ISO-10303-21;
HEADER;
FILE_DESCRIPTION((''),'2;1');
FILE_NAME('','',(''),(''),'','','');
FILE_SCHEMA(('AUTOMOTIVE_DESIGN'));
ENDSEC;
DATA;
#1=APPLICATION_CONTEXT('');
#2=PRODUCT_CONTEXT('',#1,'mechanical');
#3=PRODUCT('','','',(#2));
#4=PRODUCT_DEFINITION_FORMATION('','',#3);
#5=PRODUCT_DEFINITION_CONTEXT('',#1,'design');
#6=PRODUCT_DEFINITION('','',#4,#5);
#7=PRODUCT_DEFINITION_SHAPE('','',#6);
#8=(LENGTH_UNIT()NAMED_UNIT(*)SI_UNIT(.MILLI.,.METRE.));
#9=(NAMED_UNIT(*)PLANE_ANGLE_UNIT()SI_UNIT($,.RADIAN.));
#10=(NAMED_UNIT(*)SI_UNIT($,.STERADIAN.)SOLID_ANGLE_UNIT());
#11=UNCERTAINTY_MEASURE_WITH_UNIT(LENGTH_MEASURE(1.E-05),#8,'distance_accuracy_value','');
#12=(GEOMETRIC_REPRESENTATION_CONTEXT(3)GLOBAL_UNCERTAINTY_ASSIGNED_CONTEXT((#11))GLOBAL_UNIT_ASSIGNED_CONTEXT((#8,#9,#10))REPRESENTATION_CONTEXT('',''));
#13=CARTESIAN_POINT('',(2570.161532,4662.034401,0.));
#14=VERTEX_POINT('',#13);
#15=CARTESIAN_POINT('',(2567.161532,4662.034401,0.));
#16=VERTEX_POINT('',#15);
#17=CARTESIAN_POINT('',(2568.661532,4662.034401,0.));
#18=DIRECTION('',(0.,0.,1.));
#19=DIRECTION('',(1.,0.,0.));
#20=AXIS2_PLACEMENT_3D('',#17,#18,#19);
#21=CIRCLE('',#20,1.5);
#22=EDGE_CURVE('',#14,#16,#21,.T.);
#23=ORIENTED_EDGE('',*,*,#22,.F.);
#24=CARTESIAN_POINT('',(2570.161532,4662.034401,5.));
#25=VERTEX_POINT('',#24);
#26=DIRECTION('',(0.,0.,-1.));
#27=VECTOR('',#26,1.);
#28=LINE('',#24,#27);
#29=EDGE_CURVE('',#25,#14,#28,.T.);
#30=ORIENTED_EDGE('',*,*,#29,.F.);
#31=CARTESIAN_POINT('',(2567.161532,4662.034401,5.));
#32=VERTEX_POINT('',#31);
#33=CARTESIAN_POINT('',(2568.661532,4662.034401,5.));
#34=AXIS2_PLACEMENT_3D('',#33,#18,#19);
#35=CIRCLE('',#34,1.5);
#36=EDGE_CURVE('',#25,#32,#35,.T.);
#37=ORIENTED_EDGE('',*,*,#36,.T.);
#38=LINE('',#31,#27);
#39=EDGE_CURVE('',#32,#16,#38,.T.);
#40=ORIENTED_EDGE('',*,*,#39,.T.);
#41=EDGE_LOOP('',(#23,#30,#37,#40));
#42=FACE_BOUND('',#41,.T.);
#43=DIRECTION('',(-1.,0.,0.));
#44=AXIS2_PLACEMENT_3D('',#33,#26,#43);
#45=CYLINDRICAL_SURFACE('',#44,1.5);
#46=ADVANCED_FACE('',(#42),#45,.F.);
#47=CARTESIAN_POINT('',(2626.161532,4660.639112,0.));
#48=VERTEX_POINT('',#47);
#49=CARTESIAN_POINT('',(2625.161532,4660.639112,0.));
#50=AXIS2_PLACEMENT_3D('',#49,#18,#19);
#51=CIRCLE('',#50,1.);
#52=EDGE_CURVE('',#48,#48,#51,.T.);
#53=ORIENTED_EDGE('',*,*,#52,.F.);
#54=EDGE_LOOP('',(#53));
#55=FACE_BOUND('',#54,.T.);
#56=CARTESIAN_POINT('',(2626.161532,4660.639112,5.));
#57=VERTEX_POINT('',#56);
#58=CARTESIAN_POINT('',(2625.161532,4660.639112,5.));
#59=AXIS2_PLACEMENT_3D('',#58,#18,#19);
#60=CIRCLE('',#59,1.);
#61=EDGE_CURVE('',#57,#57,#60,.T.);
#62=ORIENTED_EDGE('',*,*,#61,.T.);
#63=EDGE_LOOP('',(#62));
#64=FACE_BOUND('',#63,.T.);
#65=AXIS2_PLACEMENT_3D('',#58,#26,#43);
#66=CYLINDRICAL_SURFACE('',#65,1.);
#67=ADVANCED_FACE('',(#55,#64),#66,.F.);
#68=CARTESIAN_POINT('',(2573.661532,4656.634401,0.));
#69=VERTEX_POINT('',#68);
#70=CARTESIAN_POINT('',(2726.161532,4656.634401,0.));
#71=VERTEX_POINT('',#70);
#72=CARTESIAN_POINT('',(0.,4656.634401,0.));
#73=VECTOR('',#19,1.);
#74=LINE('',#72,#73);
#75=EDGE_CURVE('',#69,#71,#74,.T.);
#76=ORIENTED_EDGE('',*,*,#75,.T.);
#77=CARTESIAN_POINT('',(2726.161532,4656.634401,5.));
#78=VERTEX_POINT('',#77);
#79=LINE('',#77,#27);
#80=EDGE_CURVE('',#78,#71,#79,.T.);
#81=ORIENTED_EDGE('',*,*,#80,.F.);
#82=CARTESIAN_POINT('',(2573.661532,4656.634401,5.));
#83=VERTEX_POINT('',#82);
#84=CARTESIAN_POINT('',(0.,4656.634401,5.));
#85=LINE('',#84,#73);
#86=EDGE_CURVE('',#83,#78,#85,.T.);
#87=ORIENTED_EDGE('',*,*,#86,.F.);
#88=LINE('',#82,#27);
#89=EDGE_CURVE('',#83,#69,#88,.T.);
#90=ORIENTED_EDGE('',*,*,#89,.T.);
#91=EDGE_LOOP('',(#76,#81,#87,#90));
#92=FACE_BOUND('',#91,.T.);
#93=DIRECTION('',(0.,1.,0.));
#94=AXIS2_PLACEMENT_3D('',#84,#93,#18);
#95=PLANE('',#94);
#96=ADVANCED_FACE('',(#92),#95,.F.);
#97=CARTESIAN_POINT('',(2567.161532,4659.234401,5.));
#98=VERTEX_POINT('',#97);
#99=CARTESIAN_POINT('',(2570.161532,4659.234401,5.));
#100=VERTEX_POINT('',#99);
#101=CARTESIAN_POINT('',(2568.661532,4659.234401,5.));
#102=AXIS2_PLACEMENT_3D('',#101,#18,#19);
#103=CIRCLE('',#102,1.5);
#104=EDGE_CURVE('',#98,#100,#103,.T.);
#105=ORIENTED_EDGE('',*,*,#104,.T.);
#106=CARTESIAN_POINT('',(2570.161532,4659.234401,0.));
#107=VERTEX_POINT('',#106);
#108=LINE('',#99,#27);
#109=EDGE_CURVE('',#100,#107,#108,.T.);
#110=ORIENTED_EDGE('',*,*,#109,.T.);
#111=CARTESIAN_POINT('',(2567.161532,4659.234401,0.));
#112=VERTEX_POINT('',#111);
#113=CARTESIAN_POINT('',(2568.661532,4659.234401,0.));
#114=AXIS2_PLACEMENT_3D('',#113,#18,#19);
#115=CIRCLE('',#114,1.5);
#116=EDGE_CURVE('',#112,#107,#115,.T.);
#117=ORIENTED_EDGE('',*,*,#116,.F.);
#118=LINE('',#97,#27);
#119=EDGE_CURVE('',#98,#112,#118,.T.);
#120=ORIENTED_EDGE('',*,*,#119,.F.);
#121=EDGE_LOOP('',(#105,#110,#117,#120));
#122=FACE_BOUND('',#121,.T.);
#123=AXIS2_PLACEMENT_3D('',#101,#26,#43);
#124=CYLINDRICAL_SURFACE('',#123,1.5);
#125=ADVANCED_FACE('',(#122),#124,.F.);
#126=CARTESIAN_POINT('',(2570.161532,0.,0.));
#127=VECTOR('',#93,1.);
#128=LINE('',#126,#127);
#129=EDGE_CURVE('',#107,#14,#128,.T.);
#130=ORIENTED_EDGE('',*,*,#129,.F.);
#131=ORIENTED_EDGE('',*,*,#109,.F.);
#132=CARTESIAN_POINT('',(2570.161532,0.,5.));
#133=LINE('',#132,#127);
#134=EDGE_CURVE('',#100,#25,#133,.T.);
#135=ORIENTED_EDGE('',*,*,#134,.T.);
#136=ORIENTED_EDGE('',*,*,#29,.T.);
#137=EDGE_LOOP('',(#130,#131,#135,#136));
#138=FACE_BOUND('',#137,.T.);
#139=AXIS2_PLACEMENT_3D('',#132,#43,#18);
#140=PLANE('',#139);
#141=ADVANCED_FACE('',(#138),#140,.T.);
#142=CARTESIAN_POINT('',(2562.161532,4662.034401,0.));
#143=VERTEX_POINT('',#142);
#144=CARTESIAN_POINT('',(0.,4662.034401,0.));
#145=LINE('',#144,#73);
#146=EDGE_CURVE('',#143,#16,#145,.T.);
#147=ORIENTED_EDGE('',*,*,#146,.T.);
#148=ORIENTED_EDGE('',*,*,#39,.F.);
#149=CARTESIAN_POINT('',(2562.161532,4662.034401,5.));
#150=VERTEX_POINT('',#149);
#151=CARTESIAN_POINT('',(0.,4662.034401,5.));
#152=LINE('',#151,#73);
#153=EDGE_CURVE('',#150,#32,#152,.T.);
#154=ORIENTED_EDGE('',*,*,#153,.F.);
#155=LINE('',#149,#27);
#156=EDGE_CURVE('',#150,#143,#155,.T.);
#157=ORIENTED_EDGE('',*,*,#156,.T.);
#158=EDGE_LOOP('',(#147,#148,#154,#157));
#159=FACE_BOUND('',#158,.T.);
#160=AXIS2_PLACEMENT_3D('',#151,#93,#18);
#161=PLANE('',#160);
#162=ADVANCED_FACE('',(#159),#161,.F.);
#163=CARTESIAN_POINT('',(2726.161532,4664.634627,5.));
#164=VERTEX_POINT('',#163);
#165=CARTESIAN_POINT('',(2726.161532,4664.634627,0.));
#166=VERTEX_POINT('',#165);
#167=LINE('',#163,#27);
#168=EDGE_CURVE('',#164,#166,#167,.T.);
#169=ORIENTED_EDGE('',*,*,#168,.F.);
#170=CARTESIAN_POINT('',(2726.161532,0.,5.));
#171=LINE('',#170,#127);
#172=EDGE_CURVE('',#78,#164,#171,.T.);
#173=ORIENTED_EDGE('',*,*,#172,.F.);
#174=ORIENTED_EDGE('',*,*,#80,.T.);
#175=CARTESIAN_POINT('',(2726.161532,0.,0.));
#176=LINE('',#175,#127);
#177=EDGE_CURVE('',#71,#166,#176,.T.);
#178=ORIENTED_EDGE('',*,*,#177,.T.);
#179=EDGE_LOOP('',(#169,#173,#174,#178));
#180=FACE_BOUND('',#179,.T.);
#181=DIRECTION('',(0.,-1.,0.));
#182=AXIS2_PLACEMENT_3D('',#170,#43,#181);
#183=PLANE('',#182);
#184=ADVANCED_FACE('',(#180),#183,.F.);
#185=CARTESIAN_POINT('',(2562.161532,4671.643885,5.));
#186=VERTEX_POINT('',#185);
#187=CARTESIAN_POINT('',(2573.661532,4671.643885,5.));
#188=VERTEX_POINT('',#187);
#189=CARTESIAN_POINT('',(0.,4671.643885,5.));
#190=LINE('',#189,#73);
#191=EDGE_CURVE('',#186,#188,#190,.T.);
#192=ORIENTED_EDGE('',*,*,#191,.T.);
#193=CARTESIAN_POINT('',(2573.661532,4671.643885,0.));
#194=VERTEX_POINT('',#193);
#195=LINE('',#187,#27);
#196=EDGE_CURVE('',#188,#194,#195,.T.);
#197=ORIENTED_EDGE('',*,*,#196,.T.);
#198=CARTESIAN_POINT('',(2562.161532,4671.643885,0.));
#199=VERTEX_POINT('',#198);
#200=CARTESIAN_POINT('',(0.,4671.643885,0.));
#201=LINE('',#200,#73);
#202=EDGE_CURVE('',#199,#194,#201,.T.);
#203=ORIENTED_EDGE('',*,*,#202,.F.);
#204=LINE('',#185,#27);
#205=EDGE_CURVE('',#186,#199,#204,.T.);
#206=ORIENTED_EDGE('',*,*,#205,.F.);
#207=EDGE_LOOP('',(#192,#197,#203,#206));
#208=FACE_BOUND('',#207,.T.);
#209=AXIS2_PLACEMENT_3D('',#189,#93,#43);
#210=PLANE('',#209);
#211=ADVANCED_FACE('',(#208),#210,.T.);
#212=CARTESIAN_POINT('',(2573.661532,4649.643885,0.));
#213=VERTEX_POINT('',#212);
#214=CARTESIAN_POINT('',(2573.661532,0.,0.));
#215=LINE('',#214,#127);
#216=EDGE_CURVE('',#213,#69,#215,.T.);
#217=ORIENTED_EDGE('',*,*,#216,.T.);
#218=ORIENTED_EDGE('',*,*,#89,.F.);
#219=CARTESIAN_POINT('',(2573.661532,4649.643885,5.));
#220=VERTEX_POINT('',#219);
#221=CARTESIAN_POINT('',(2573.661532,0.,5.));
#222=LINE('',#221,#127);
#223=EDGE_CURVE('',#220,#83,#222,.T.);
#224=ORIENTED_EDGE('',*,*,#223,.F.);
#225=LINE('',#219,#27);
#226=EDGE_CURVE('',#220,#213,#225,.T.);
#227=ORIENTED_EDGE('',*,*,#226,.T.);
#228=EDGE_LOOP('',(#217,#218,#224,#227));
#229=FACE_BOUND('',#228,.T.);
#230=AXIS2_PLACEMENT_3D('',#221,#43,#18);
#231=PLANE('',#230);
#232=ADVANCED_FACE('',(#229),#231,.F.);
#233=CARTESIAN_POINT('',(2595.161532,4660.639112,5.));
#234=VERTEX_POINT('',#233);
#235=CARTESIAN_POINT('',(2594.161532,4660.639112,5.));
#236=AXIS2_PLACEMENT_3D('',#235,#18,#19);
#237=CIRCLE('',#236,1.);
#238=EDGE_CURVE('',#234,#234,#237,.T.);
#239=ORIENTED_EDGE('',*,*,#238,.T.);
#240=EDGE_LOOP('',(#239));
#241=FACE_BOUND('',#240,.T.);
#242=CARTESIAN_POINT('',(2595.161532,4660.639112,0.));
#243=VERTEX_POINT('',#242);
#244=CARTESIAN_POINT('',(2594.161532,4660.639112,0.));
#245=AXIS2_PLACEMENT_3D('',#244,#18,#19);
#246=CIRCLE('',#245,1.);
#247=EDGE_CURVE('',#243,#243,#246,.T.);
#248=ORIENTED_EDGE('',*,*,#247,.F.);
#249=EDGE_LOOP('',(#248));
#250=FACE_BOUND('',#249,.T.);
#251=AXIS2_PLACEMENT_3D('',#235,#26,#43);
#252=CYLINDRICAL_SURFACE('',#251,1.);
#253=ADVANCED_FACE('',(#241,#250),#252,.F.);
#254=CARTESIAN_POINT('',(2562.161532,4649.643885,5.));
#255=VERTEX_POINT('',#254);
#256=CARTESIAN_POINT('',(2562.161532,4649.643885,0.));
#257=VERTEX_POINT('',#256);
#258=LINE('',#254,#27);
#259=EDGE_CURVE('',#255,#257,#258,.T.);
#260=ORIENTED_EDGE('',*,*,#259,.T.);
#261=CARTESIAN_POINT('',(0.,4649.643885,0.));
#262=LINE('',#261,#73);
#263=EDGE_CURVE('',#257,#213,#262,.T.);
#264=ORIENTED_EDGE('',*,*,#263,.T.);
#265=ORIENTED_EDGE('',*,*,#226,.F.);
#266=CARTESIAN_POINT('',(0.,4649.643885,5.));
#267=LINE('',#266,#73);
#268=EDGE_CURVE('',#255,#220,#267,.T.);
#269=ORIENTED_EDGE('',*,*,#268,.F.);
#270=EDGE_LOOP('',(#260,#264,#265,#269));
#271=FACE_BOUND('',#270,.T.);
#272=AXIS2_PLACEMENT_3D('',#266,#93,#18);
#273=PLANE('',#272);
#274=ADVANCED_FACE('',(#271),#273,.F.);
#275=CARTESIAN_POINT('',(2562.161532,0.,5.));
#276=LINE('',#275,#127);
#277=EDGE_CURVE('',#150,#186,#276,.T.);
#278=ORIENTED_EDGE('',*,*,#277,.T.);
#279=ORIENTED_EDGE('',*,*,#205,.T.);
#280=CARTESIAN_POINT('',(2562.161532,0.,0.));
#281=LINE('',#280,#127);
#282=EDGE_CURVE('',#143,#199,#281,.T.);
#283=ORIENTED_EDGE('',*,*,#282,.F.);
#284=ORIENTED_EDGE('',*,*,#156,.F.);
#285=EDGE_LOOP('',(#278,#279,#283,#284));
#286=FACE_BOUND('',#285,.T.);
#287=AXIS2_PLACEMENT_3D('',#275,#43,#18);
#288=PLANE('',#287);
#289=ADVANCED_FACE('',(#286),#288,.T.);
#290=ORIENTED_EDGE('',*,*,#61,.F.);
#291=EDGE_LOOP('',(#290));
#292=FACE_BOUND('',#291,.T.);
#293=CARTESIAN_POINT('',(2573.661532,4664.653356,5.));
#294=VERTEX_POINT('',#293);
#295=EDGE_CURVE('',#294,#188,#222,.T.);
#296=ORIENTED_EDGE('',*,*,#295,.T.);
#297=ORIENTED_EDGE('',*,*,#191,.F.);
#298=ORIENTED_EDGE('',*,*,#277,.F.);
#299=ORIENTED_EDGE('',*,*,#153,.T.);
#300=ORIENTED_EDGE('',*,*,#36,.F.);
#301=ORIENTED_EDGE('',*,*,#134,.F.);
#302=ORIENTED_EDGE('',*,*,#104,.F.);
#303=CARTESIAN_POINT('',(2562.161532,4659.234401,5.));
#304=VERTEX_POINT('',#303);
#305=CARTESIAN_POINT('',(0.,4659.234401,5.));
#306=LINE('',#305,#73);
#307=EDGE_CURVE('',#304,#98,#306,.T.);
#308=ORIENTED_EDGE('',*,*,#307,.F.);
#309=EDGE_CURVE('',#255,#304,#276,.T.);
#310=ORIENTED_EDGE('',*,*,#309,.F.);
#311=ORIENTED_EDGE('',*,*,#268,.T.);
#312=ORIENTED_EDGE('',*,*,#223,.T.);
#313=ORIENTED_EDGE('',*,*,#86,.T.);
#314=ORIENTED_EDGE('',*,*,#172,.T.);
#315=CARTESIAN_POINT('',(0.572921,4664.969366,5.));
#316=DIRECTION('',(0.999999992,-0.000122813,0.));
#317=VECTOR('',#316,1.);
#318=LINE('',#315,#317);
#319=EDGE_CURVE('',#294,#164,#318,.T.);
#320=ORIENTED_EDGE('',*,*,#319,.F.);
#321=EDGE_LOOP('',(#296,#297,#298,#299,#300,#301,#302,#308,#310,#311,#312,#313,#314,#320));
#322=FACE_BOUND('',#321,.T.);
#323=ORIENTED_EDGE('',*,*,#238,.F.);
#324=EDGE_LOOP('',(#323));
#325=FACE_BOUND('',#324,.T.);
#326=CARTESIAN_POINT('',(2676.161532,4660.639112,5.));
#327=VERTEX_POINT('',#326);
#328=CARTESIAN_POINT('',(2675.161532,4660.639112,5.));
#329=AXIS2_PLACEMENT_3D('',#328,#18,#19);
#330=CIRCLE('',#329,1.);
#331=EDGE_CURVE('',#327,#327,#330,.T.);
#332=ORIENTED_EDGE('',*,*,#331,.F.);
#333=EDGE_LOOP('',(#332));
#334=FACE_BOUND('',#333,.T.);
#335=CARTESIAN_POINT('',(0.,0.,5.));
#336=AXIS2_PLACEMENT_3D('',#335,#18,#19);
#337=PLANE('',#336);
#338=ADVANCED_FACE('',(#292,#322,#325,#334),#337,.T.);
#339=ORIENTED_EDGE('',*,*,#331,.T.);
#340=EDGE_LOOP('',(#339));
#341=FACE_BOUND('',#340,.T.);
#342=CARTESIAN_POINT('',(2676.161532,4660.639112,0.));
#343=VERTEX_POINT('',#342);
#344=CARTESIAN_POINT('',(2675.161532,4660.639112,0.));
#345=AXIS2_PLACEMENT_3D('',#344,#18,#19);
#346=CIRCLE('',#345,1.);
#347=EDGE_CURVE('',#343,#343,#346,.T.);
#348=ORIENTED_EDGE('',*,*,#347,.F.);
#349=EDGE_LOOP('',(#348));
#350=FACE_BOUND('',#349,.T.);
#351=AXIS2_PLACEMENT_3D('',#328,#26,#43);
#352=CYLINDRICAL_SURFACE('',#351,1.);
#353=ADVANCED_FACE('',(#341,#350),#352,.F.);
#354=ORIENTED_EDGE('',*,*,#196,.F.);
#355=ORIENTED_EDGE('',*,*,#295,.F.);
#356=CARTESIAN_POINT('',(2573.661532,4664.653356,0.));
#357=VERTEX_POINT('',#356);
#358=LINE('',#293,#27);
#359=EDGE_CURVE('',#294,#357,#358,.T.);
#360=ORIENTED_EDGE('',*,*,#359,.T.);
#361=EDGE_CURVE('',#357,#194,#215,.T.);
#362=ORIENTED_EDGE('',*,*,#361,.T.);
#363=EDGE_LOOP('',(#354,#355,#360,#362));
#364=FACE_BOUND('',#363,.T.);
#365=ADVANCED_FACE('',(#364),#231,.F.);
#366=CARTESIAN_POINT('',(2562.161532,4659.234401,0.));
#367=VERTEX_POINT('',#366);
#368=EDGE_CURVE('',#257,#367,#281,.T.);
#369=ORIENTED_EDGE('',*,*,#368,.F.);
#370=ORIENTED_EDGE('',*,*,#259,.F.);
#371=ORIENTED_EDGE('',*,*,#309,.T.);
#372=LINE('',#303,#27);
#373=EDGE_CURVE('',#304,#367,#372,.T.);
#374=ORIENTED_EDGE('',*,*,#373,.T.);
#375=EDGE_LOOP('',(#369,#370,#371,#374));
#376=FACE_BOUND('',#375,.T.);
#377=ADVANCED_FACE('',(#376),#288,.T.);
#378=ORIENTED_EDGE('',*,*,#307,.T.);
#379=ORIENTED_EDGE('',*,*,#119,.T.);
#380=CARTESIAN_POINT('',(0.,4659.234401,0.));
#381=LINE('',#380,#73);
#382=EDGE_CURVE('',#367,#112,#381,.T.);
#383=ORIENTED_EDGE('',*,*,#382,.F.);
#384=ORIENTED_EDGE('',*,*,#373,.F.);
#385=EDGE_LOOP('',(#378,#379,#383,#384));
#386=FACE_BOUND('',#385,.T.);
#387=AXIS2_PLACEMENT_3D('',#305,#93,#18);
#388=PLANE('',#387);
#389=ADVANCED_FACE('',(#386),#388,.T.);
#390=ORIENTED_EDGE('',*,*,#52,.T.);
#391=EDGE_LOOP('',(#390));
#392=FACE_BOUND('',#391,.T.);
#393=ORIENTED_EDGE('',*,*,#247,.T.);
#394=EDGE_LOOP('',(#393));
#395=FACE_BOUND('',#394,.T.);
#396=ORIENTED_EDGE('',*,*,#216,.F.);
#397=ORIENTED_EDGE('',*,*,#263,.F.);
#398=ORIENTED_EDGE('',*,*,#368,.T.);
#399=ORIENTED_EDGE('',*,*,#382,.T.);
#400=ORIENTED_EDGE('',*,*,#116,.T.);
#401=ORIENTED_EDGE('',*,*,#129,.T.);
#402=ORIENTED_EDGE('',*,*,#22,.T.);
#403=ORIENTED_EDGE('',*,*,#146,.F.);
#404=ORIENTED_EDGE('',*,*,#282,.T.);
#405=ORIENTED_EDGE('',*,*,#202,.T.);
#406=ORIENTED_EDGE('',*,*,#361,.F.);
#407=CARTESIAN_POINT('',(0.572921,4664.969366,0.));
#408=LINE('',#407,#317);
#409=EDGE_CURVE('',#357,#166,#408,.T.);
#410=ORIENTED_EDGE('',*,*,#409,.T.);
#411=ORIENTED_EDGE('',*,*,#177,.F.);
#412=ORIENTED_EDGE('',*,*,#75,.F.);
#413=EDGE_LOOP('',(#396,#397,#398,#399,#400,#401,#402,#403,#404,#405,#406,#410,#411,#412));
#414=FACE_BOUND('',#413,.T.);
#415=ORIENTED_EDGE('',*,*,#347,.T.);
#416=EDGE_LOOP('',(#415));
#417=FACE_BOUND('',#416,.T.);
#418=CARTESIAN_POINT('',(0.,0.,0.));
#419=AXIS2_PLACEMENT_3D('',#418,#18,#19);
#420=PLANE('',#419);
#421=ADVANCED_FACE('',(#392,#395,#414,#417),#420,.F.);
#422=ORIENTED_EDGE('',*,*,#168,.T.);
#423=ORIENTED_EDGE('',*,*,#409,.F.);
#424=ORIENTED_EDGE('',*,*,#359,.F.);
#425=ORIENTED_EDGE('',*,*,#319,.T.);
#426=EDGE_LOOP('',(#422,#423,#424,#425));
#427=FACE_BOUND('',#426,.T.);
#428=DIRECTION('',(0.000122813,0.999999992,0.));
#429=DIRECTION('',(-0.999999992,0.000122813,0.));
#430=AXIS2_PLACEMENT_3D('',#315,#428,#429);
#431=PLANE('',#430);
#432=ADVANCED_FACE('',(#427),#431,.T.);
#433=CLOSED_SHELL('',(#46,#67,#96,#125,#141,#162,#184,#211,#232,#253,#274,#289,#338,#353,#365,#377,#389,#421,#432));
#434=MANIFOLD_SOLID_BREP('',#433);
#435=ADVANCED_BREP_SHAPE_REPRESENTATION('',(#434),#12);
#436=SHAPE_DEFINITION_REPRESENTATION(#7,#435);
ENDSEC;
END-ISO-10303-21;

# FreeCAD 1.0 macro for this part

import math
import FreeCAD as App
import Part
import Sketcher
Q = App.Units.Quantity

doc = App.newDocument("Part")
params = doc.addObject("Spreadsheet::Sheet", "Params")
for row, (alias, value) in enumerate([
    ("sketch1_diameter", "2 mm"),
    ("sketch1_radius", "1.5 mm"),
    ("sketch1_width", "5 mm"),
    ("sketch1_width2", "11.5 mm"),
    ("sketch1_width3", "152.5 mm"),
    ("pad1_length", "5 mm"),
], start=1):
    params.set(f"A{row}", alias)
    params.set(f"B{row}", "=" + value)
    params.setAlias(f"B{row}", alias)

body = doc.addObject("PartDesign::Body", "Body")

# Sketch on XY plane
sketch1 = body.newObject("Sketcher::SketchObject", "Sketch")
sketch1.AttachmentSupport = (doc.getObject("XY_Plane"), [""])
sketch1.MapMode = "FlatFace"
sketch1.addGeometry([
    Part.LineSegment(App.Vector(2726.2, 4664.6, 0), App.Vector(2573.7, 4664.7, 0)),  # 0
    Part.LineSegment(App.Vector(2573.7, 4664.7, 0), App.Vector(2573.7, 4671.6, 0)),  # 1
    Part.LineSegment(App.Vector(2573.7, 4671.6, 0), App.Vector(2562.2, 4671.6, 0)),  # 2
    Part.LineSegment(App.Vector(2562.2, 4671.6, 0), App.Vector(2562.2, 4662, 0)),  # 3
    Part.LineSegment(App.Vector(2562.2, 4662, 0), App.Vector(2567.2, 4662, 0)),  # 4
    Part.ArcOfCircle(Part.Circle(App.Vector(2568.7, 4662, 0), App.Vector(0, 0, 1), 1.5), math.radians(0), math.radians(180)),  # 5
    Part.LineSegment(App.Vector(2570.2, 4662, 0), App.Vector(2570.2, 4659.2, 0)),  # 6
    Part.ArcOfCircle(Part.Circle(App.Vector(2568.7, 4659.2, 0), App.Vector(0, 0, 1), 1.5), math.radians(180), math.radians(360)),  # 7
    Part.LineSegment(App.Vector(2567.2, 4659.2, 0), App.Vector(2562.2, 4659.2, 0)),  # 8
    Part.LineSegment(App.Vector(2562.2, 4659.2, 0), App.Vector(2562.2, 4649.6, 0)),  # 9
    Part.LineSegment(App.Vector(2562.2, 4649.6, 0), App.Vector(2573.7, 4649.6, 0)),  # 10
    Part.LineSegment(App.Vector(2573.7, 4649.6, 0), App.Vector(2573.7, 4656.6, 0)),  # 11
    Part.LineSegment(App.Vector(2573.7, 4656.6, 0), App.Vector(2726.2, 4656.6, 0)),  # 12
    Part.LineSegment(App.Vector(2726.2, 4656.6, 0), App.Vector(2726.2, 4664.6, 0)),  # 13
    Part.Circle(App.Vector(2594.2, 4660.6, 0), App.Vector(0, 0, 1), 1),  # 14
    Part.Circle(App.Vector(2625.2, 4660.6, 0), App.Vector(0, 0, 1), 1),  # 15
    Part.Circle(App.Vector(2675.2, 4660.6, 0), App.Vector(0, 0, 1), 1),  # 16
], False)
sketch1.addConstraint([
    Sketcher.Constraint("Coincident", 0, 2, 1, 1),
    Sketcher.Constraint("Coincident", 1, 2, 2, 1),
    Sketcher.Constraint("Coincident", 2, 2, 3, 1),
    Sketcher.Constraint("Coincident", 3, 2, 4, 1),
    Sketcher.Constraint("Coincident", 4, 2, 5, 2),
    Sketcher.Constraint("Tangent", 5, 1, 6, 1),
    Sketcher.Constraint("Tangent", 6, 2, 7, 2),
    Sketcher.Constraint("Coincident", 7, 1, 8, 1),
    Sketcher.Constraint("Coincident", 8, 2, 9, 1),
    Sketcher.Constraint("Coincident", 9, 2, 10, 1),
    Sketcher.Constraint("Coincident", 10, 2, 11, 1),
    Sketcher.Constraint("Coincident", 11, 2, 12, 1),
    Sketcher.Constraint("Coincident", 12, 2, 13, 1),
    Sketcher.Constraint("Coincident", 13, 2, 0, 1),
    Sketcher.Constraint("Vertical", 1),
    Sketcher.Constraint("Horizontal", 2),
    Sketcher.Constraint("Vertical", 3),
    Sketcher.Constraint("Horizontal", 4),
    Sketcher.Constraint("Vertical", 6),
    Sketcher.Constraint("Horizontal", 8),
    Sketcher.Constraint("Vertical", 9),
    Sketcher.Constraint("Horizontal", 10),
    Sketcher.Constraint("Vertical", 11),
    Sketcher.Constraint("Horizontal", 12),
    Sketcher.Constraint("Vertical", 13),
    Sketcher.Constraint("Equal", 5, 7),
    Sketcher.Constraint("Equal", 14, 15),
    Sketcher.Constraint("Equal", 15, 16),
    Sketcher.Constraint("Horizontal", 14, 3, 15, 3),
    Sketcher.Constraint("Horizontal", 15, 3, 16, 3),
    Sketcher.Constraint("Horizontal", 5, 3, 3, 2),
    Sketcher.Constraint("Horizontal", 6, 2, 7, 1),
    Sketcher.Constraint("Vertical", 3, 2, 8, 2),
    Sketcher.Constraint("Vertical", 1, 2, 10, 2),
    Sketcher.Constraint("Diameter", 14, Q("2 mm")),
    Sketcher.Constraint("Radius", 5, Q("1.5 mm")),
    Sketcher.Constraint("DistanceX", 4, 1, 4, 2, Q("5 mm")),
    Sketcher.Constraint("DistanceX", 2, 2, 2, 1, Q("11.5 mm")),
    Sketcher.Constraint("DistanceX", 12, 1, 12, 2, Q("152.5 mm")),
    Sketcher.Constraint("DistanceY", 6, 2, 6, 1, Q("2.8 mm")),
    Sketcher.Constraint("DistanceX", 14, 3, 15, 3, Q("31 mm")),
    Sketcher.Constraint("DistanceX", 15, 3, 16, 3, Q("50 mm")),
    Sketcher.Constraint("DistanceX", 2, 2, 14, 3, Q("32 mm")),
    Sketcher.Constraint("DistanceY", 11, 2, 6, 2, Q("2.6 mm")),
    Sketcher.Constraint("DistanceY", 1, 1, 1, 2, Q("6.990529 mm")),
    Sketcher.Constraint("DistanceY", -1, 1, 5, 3, Q("4662.034401 mm")),
    Sketcher.Constraint("DistanceY", 3, 2, 3, 1, Q("9.609484 mm")),
    Sketcher.Constraint("DistanceY", 9, 2, 9, 1, Q("9.590516 mm")),
    Sketcher.Constraint("DistanceY", 13, 1, 13, 2, Q("8.000226 mm")),
    Sketcher.Constraint("DistanceX", -1, 1, 5, 3, Q("2568.661532 mm")),
    Sketcher.Constraint("DistanceY", -1, 1, 14, 3, Q("4660.639112 mm")),
])
sketch1.setExpression("Constraints[34]", "Params.sketch1_diameter")
sketch1.setExpression("Constraints[35]", "Params.sketch1_radius")
sketch1.setExpression("Constraints[36]", "Params.sketch1_width")
sketch1.setExpression("Constraints[37]", "Params.sketch1_width2")
sketch1.setExpression("Constraints[38]", "Params.sketch1_width3")
pad1 = body.newObject("PartDesign::Pad", "Pad")
pad1.Profile = sketch1
pad1.setExpression("Length", "Params.pad1_length")

doc.recompute()
